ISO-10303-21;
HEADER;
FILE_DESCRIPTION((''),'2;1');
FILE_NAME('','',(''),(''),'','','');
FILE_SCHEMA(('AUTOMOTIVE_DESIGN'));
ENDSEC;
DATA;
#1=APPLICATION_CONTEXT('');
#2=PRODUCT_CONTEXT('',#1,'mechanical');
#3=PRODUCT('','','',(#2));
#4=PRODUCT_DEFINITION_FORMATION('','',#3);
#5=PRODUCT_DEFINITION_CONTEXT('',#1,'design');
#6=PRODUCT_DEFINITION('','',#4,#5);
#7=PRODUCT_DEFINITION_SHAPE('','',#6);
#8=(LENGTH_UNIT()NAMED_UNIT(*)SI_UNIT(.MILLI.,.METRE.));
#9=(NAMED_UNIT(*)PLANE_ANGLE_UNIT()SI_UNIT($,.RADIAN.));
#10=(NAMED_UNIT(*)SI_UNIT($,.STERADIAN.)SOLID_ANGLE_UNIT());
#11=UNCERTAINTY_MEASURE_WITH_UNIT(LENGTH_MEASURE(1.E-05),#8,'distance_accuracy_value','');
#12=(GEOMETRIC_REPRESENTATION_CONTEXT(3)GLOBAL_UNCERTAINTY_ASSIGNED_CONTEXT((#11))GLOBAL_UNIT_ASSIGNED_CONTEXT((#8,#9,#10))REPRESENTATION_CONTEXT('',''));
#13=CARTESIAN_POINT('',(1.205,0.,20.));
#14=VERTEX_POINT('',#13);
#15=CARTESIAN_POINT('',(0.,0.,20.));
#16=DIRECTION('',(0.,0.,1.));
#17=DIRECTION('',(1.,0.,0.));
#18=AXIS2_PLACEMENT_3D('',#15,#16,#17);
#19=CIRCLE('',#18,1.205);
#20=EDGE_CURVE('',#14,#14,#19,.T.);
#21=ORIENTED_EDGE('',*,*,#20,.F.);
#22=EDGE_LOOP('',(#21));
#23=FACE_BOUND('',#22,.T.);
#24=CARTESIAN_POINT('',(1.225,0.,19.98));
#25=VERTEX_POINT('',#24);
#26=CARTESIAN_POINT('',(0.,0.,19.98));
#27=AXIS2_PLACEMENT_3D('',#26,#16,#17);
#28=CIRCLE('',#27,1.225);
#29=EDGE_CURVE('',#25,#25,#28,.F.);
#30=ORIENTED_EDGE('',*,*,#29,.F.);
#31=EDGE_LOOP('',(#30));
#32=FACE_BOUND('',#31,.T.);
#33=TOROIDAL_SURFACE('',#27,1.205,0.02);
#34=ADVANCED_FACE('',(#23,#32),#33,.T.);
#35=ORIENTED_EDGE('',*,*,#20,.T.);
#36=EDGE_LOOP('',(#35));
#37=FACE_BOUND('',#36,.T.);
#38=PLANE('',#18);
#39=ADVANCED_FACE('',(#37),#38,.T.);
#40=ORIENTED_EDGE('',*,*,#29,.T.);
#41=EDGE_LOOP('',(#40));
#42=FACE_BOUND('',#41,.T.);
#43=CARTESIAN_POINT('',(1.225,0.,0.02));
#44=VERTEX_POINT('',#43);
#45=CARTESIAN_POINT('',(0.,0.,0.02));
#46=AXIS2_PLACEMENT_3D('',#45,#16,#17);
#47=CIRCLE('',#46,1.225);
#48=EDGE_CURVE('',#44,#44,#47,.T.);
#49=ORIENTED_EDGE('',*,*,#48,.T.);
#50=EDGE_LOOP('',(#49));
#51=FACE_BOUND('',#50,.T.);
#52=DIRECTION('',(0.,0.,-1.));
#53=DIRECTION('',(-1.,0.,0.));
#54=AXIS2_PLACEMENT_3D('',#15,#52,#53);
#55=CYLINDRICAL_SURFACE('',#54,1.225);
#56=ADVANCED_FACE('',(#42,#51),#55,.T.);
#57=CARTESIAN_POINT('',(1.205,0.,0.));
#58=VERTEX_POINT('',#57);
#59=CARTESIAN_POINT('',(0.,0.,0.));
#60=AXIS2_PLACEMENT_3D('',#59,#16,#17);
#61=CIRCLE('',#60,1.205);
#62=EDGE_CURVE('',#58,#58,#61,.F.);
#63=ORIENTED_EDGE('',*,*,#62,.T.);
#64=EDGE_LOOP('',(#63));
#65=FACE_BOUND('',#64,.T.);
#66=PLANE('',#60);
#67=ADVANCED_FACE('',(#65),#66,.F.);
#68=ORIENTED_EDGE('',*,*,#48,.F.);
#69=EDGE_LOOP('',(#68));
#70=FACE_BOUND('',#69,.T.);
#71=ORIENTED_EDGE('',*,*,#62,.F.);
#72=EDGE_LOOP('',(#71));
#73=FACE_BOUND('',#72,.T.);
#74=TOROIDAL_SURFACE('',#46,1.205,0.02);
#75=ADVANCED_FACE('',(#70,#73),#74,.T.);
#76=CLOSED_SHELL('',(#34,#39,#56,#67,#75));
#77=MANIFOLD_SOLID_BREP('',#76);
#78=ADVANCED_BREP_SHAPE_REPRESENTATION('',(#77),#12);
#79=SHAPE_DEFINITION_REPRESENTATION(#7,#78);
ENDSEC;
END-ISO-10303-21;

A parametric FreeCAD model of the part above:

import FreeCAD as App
import Part
import Sketcher
from FreeCAD import Vector


def edges_at(feature, points):
    """Names of the edges that pass closest to the given points."""
    edges = feature.Shape.Edges
    near = lambda p: min(range(len(edges)), key=lambda i: edges[i].distToShape(Part.Vertex(*p))[0])
    return sorted({f"Edge{near(p) + 1}" for p in points})

doc = App.newDocument("Part")
params = doc.addObject("Spreadsheet::Sheet", "Params")
for row, (alias, value) in enumerate([
    ("sketch1_diameter", "2.45 mm"),
    ("pad1_length", "20 mm"),
    ("fillet_radius", "0.02 mm"),
], start=1):
    params.set(f"A{row}", alias)
    params.set(f"B{row}", "=" + value)
    params.setAlias(f"B{row}", alias)

body = doc.addObject("PartDesign::Body", "Body")

sketch1 = doc.addObject("Sketcher::SketchObject", "Sketch")
body.addObject(sketch1)
sketch1.AttachmentSupport = (doc.XY_Plane, [""])
sketch1.MapMode = "FlatFace"
sketch1.addGeometry(Part.Circle(Vector(0, 0, 0), Vector(0, 0, 1), 1.2), False)
sketch1.addConstraint([
    Sketcher.Constraint("Coincident", 0, 3, -1, 1),
    Sketcher.Constraint("Diameter", 0, 2.45),
])
sketch1.setExpression("Constraints[1]", "Params.sketch1_diameter")
pad1 = doc.addObject("PartDesign::Pad", "Pad")
body.addObject(pad1)
pad1.Profile = sketch1
pad1.setExpression("Length", "Params.pad1_length")
doc.recompute()

fillet = doc.addObject("PartDesign::Fillet", "Fillet")
body.addObject(fillet)
fillet.Base = (pad1, edges_at(pad1, [(-1.225, 0, 0), (-1.225, 0, 20)]))
fillet.setExpression("Radius", "Params.fillet_radius")

doc.recompute()
